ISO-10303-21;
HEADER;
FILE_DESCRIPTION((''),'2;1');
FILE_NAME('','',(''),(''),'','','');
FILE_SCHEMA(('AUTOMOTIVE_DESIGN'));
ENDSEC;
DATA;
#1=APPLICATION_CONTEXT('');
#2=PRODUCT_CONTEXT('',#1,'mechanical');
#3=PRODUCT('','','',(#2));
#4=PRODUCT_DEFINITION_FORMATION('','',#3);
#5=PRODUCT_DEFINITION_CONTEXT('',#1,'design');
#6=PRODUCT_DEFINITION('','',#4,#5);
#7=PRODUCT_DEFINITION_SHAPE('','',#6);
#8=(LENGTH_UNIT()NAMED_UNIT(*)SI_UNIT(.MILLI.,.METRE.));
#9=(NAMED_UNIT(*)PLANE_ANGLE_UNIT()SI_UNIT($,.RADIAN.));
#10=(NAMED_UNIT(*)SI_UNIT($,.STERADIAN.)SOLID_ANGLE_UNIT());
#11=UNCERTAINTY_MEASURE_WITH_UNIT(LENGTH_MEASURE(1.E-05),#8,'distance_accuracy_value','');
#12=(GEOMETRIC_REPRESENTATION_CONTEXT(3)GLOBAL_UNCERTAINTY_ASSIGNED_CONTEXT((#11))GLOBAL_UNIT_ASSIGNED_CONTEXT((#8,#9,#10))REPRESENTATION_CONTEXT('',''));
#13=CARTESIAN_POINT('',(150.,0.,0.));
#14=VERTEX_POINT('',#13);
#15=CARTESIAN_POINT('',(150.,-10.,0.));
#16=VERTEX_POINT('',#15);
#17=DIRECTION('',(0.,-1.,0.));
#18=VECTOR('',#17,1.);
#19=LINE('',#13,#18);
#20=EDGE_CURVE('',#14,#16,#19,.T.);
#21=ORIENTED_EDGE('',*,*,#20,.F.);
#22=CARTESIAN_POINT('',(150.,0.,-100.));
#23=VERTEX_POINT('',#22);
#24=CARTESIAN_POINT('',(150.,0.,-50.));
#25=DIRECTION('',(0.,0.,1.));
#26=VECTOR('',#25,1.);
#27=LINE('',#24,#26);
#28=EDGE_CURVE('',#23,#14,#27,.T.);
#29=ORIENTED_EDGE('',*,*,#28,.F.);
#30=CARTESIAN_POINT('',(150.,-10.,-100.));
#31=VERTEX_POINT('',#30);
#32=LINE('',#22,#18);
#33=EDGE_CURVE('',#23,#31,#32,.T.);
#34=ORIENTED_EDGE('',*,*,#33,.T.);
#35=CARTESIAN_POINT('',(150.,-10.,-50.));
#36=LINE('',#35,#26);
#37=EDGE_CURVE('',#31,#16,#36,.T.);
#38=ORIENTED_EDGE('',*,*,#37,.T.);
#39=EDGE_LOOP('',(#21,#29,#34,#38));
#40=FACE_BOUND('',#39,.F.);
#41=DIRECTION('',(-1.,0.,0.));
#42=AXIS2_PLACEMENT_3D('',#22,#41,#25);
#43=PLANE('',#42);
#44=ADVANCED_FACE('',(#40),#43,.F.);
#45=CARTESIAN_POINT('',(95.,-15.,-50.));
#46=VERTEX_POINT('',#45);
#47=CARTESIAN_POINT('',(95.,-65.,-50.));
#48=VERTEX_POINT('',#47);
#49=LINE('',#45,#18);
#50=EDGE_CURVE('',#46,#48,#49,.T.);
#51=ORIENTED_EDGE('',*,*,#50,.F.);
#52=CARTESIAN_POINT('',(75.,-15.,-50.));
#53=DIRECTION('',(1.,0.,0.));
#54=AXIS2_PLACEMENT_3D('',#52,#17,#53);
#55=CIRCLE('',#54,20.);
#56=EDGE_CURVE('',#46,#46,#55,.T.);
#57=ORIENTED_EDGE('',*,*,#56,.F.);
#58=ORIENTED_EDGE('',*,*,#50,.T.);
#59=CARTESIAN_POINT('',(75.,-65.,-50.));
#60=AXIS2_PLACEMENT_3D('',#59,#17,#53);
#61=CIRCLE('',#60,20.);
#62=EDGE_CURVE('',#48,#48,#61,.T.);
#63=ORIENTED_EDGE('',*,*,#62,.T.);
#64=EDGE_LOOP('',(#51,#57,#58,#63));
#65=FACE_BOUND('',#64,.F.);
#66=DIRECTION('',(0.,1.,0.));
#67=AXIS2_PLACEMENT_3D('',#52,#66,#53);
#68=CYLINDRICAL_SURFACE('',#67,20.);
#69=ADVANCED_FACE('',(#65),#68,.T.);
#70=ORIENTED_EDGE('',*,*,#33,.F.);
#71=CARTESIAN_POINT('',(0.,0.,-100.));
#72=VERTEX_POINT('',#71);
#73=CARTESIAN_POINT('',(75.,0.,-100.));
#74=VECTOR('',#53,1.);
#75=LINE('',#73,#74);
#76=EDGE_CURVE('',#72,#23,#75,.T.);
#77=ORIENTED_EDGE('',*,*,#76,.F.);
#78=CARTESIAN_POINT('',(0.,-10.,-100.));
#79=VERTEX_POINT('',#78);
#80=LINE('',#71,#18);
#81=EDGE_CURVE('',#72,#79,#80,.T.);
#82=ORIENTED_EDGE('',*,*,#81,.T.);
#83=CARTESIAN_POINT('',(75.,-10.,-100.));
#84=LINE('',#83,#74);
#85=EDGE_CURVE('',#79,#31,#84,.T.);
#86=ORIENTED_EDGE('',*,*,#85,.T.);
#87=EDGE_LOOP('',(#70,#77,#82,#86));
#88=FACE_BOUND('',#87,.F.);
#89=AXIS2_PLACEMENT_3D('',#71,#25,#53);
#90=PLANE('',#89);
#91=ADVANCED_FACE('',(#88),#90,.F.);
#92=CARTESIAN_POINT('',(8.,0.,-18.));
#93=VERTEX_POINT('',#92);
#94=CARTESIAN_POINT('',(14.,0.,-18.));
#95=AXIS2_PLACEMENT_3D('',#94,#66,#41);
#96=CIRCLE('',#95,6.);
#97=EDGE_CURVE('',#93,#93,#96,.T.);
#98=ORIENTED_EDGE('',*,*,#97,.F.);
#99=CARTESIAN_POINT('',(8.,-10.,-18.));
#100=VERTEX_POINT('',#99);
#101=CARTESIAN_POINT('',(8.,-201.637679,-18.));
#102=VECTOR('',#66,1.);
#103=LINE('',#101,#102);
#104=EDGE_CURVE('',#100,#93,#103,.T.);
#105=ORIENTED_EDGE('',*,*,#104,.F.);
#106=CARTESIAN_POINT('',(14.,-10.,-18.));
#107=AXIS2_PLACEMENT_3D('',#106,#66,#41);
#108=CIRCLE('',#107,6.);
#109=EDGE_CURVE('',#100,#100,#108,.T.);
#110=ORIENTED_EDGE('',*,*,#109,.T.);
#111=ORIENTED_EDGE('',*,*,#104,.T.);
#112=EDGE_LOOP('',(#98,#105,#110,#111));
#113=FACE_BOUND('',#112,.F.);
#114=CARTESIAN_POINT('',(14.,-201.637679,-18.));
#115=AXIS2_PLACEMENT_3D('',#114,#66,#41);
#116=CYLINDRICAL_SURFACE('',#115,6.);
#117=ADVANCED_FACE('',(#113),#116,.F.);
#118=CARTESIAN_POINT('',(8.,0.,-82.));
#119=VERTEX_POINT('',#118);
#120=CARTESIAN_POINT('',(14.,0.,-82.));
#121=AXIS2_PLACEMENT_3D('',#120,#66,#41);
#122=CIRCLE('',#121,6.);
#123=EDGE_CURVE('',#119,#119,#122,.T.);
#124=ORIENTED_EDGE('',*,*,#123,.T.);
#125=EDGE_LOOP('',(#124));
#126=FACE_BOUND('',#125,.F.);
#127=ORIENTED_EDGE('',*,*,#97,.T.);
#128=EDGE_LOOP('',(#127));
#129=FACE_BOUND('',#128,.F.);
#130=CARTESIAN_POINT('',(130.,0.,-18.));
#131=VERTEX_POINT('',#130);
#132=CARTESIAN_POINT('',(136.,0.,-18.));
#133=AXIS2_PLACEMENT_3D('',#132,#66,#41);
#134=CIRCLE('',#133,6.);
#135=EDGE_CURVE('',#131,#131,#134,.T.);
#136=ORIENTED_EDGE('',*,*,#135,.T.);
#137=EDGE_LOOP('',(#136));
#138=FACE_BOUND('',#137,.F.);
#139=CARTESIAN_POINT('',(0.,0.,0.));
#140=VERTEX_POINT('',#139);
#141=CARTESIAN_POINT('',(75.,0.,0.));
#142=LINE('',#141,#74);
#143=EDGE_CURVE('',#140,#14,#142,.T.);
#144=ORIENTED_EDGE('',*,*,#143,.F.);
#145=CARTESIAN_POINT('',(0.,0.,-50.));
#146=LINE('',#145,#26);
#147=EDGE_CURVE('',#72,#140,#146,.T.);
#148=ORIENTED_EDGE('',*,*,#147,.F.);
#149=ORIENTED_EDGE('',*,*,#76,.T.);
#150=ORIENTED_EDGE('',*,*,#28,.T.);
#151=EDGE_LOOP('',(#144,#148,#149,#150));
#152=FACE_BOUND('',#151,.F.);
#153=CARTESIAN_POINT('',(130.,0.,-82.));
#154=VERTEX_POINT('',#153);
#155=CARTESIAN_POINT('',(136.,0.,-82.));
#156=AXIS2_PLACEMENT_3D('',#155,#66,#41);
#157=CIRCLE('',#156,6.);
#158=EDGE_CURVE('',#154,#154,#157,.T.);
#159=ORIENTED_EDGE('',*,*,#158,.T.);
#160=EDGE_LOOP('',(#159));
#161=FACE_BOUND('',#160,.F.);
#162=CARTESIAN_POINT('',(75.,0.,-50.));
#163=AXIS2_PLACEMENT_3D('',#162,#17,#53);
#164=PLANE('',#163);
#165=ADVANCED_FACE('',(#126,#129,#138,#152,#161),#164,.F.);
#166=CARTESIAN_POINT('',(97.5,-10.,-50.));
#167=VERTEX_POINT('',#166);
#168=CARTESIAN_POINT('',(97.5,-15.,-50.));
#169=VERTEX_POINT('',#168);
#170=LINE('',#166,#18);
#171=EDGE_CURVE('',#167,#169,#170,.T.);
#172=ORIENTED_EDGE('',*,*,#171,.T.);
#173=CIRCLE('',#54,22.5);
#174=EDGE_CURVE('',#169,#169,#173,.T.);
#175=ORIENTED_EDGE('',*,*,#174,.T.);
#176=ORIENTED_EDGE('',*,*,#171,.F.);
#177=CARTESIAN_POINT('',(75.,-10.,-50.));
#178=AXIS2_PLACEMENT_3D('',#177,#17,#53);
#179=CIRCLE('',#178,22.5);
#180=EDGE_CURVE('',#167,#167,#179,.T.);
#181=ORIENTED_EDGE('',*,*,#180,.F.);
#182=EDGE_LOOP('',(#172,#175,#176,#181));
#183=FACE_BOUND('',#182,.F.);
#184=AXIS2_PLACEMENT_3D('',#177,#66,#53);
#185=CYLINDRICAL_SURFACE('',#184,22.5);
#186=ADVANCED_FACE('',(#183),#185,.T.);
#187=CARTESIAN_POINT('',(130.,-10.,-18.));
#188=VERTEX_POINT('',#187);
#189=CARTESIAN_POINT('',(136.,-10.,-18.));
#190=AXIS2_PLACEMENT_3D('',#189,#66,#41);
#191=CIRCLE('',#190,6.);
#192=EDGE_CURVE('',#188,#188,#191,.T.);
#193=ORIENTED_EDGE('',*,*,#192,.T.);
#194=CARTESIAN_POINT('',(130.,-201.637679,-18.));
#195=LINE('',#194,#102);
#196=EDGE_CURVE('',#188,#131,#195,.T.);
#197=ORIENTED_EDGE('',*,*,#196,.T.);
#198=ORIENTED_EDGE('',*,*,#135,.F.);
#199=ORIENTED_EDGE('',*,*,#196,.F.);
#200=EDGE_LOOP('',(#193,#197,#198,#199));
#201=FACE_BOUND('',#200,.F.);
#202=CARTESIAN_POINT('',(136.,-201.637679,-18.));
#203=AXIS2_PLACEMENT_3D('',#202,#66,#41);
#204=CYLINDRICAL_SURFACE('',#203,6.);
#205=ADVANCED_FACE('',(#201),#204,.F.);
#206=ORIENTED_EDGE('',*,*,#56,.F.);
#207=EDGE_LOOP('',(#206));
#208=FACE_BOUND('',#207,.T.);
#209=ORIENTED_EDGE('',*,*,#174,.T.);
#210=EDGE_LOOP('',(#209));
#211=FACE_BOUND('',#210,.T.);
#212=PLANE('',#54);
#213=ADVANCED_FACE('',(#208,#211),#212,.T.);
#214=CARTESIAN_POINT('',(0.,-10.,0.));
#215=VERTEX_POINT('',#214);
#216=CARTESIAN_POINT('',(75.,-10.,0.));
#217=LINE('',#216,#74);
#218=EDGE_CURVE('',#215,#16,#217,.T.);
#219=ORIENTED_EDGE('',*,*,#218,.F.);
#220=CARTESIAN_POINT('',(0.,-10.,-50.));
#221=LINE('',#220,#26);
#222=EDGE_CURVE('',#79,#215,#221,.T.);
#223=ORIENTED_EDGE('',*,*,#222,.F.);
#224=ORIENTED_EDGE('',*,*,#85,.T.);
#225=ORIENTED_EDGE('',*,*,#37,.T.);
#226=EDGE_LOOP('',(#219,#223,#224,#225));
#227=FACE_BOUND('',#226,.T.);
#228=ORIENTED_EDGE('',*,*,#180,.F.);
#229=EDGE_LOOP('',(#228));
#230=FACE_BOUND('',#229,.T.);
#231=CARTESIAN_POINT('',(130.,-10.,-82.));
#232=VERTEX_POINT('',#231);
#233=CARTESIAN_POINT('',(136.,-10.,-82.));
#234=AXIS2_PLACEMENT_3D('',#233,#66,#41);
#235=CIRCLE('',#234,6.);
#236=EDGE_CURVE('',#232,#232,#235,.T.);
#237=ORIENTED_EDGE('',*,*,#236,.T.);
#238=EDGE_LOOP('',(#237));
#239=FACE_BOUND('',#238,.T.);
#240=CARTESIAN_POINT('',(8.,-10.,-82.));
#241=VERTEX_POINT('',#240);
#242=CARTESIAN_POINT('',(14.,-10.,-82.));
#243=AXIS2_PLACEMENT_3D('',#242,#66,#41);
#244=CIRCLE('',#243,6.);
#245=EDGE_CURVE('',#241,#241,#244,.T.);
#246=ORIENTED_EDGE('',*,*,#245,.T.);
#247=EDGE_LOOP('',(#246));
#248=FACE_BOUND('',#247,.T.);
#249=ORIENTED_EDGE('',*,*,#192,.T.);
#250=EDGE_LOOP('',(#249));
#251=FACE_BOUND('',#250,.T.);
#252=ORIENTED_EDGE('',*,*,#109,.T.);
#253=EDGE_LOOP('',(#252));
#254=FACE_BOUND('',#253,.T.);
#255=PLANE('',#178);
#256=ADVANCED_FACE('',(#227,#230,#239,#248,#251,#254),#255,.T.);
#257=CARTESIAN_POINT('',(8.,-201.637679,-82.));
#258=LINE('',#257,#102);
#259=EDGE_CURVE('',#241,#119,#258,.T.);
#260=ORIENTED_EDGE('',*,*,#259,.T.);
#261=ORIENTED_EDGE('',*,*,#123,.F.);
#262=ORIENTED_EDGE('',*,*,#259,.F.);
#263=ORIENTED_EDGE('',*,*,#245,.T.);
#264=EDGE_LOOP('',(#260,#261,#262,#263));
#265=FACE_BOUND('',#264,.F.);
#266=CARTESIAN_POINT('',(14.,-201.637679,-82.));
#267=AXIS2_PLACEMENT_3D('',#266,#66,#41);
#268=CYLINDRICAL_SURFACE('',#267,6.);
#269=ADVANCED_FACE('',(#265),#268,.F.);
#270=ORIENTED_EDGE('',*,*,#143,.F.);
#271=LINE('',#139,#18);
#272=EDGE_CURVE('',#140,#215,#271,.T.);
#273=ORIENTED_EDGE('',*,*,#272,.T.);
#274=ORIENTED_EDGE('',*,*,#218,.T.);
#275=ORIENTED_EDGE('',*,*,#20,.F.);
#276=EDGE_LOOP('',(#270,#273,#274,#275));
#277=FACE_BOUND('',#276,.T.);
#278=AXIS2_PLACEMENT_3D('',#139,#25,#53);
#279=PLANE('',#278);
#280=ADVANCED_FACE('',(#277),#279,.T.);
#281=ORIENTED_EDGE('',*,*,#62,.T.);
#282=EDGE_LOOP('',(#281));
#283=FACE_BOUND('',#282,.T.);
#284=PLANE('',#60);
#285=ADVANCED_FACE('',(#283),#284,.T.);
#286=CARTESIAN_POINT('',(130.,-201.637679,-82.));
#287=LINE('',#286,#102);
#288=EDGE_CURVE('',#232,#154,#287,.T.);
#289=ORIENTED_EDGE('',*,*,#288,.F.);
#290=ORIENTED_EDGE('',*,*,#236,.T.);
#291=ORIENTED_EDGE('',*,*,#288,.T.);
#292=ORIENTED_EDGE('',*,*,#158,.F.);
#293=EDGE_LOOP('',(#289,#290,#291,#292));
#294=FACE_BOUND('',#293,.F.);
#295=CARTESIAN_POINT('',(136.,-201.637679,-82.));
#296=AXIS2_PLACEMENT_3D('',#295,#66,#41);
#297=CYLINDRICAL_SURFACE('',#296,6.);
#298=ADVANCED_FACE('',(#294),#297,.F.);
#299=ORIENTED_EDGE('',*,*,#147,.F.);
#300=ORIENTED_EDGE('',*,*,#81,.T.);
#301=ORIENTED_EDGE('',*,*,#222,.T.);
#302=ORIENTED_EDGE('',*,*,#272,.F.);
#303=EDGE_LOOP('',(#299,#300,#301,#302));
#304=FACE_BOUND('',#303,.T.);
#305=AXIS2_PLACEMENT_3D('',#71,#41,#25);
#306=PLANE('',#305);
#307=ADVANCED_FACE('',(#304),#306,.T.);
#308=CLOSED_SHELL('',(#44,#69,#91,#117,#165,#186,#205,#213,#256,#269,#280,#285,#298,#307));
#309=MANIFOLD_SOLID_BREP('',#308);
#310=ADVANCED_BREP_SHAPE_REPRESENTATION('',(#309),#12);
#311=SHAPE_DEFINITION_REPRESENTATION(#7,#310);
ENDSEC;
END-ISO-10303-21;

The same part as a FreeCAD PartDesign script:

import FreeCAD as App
import Part
import Sketcher
Q = App.Units.Quantity


def add_polygon(sketch, points):
    """Adds a closed chain of lines whose ends are joined by coincident constraints."""
    first, n = sketch.GeometryCount, len(points)
    for a, b in zip(points, points[1:] + points[:1]):
        sketch.addGeometry(Part.LineSegment(App.Vector(*a, 0), App.Vector(*b, 0)), False)
    for i in range(n):
        sketch.addConstraint(Sketcher.Constraint("Coincident", first + i, 2, first + (i + 1) % n, 1))

doc = App.newDocument("Part")
params = doc.addObject("Spreadsheet::Sheet", "Params")
for row, (alias, value) in enumerate([
    ("sketch1_width", "150 mm"),
    ("sketch1_height", "100 mm"),
    ("pad1_length", "10 mm"),
    ("sketch2_diameter", "45 mm"),
    ("pad2_length", "5 mm"),
    ("sketch3_diameter", "40 mm"),
    ("pad3_length", "50 mm"),
    ("sketch4_diameter", "12 mm"),
    ("hole_diameter", "12 mm"),
    ("sketch5_diameter", "12 mm"),
    ("hole2_diameter", "12 mm"),
    ("sketch6_diameter", "12 mm"),
    ("hole3_diameter", "12 mm"),
], start=1):
    params.set(f"A{row}", alias)
    params.set(f"B{row}", "=" + value)
    params.setAlias(f"B{row}", alias)

body = doc.addObject("PartDesign::Body", "Body")

sketch1 = body.newObject("Sketcher::SketchObject", "Sketch")
sketch1.AttachmentSupport = (doc.getObject("XZ_Plane"), [""])
sketch1.MapMode = "FlatFace"
add_polygon(sketch1, [(0, 0), (0, -100), (150, -100), (150, 0)])
sketch1.addConstraint(Sketcher.Constraint("Vertical", 0))
sketch1.addConstraint(Sketcher.Constraint("Horizontal", 1))
sketch1.addConstraint(Sketcher.Constraint("Vertical", 2))
sketch1.addConstraint(Sketcher.Constraint("Horizontal", 3))
sketch1.addConstraint(Sketcher.Constraint("Coincident", 3, 2, -1, 1))
sketch1.addConstraint(Sketcher.Constraint("DistanceX", 1, 1, 1, 2, Q("150 mm")))
sketch1.addConstraint(Sketcher.Constraint("DistanceY", 0, 2, 0, 1, Q("100 mm")))
sketch1.setExpression("Constraints[9]", "Params.sketch1_width")
sketch1.setExpression("Constraints[10]", "Params.sketch1_height")
pad1 = body.newObject("PartDesign::Pad", "Pad")
pad1.Profile = sketch1
pad1.setExpression("Length", "Params.pad1_length")

sketch2 = body.newObject("Sketcher::SketchObject", "Sketch001")
sketch2.AttachmentSupport = (doc.getObject("XZ_Plane"), [""])
sketch2.MapMode = "FlatFace"
sketch2.AttachmentOffset = App.Placement(App.Vector(0, 0, 10), App.Rotation())
sketch2.addGeometry(Part.Circle(App.Vector(75, -50, 0), App.Vector(0, 0, 1), 22.5), False)
sketch2.addConstraint(Sketcher.Constraint("Diameter", 0, Q("45 mm")))
sketch2.addConstraint(Sketcher.Constraint("DistanceX", -1, 1, 0, 3, Q("75 mm")))
sketch2.addConstraint(Sketcher.Constraint("DistanceY", 0, 3, -1, 1, Q("50 mm")))
sketch2.setExpression("Constraints[0]", "Params.sketch2_diameter")
pad2 = body.newObject("PartDesign::Pad", "Pad001")
pad2.Profile = sketch2
pad2.setExpression("Length", "Params.pad2_length")

sketch3 = body.newObject("Sketcher::SketchObject", "Sketch002")
sketch3.AttachmentSupport = (doc.getObject("XZ_Plane"), [""])
sketch3.MapMode = "FlatFace"
sketch3.AttachmentOffset = App.Placement(App.Vector(0, 0, 15), App.Rotation())
sketch3.addGeometry(Part.Circle(App.Vector(75, -50, 0), App.Vector(0, 0, 1), 20), False)
sketch3.addConstraint(Sketcher.Constraint("Diameter", 0, Q("40 mm")))
sketch3.addConstraint(Sketcher.Constraint("DistanceX", -1, 1, 0, 3, Q("75 mm")))
sketch3.addConstraint(Sketcher.Constraint("DistanceY", 0, 3, -1, 1, Q("50 mm")))
sketch3.setExpression("Constraints[0]", "Params.sketch3_diameter")
pad3 = body.newObject("PartDesign::Pad", "Pad002")
pad3.Profile = sketch3
pad3.setExpression("Length", "Params.pad3_length")

sketch4 = body.newObject("Sketcher::SketchObject", "Sketch003")
sketch4.AttachmentSupport = (doc.getObject("XZ_Plane"), [""])
sketch4.MapMode = "FlatFace"
sketch4.AttachmentOffset = App.Placement(App.Vector(0, 0, 10), App.Rotation())
sketch4.addGeometry(Part.Circle(App.Vector(136, -18, 0), App.Vector(0, 0, 1), 6), False)
sketch4.addConstraint(Sketcher.Constraint("Diameter", 0, Q("12 mm")))
sketch4.addConstraint(Sketcher.Constraint("DistanceX", -1, 1, 0, 3, Q("136 mm")))
sketch4.addConstraint(Sketcher.Constraint("DistanceY", 0, 3, -1, 1, Q("18 mm")))
sketch4.setExpression("Constraints[0]", "Params.sketch4_diameter")
doc.recompute()
hole = body.newObject("PartDesign::Hole", "Hole")
hole.Profile = sketch4
hole.ThreadType = "None"
hole.setExpression("Diameter", "Params.hole_diameter")
hole.DepthType = "ThroughAll"

sketch5 = body.newObject("Sketcher::SketchObject", "Sketch004")
sketch5.AttachmentSupport = (doc.getObject("XZ_Plane"), [""])
sketch5.MapMode = "FlatFace"
sketch5.AttachmentOffset = App.Placement(App.Vector(0, 0, 10), App.Rotation())
sketch5.addGeometry(Part.Circle(App.Vector(136, -82, 0), App.Vector(0, 0, 1), 6), False)
sketch5.addConstraint(Sketcher.Constraint("Diameter", 0, Q("12 mm")))
sketch5.addConstraint(Sketcher.Constraint("DistanceX", -1, 1, 0, 3, Q("136 mm")))
sketch5.addConstraint(Sketcher.Constraint("DistanceY", 0, 3, -1, 1, Q("82 mm")))
sketch5.setExpression("Constraints[0]", "Params.sketch5_diameter")
doc.recompute()
hole2 = body.newObject("PartDesign::Hole", "Hole001")
hole2.Profile = sketch5
hole2.ThreadType = "None"
hole2.setExpression("Diameter", "Params.hole2_diameter")
hole2.DepthType = "ThroughAll"

sketch6 = body.newObject("Sketcher::SketchObject", "Sketch005")
sketch6.AttachmentSupport = (doc.getObject("XZ_Plane"), [""])
sketch6.MapMode = "FlatFace"
sketch6.AttachmentOffset = App.Placement(App.Vector(0, 0, 10), App.Rotation())
sketch6.addGeometry(Part.Circle(App.Vector(14, -82, 0), App.Vector(0, 0, 1), 6), False)
sketch6.addGeometry(Part.Circle(App.Vector(14, -18, 0), App.Vector(0, 0, 1), 6), False)
sketch6.addConstraint(Sketcher.Constraint("Equal", 0, 1))
sketch6.addConstraint(Sketcher.Constraint("Vertical", 0, 3, 1, 3))
sketch6.addConstraint(Sketcher.Constraint("Diameter", 0, Q("12 mm")))
sketch6.addConstraint(Sketcher.Constraint("DistanceX", -1, 1, 0, 3, Q("14 mm")))
sketch6.addConstraint(Sketcher.Constraint("DistanceY", 0, 3, -1, 1, Q("82 mm")))
sketch6.addConstraint(Sketcher.Constraint("DistanceY", 1, 3, -1, 1, Q("18 mm")))
sketch6.setExpression("Constraints[2]", "Params.sketch6_diameter")
doc.recompute()
hole3 = body.newObject("PartDesign::Hole", "Hole002")
hole3.Profile = sketch6
hole3.ThreadType = "None"
hole3.setExpression("Diameter", "Params.hole3_diameter")
hole3.DepthType = "ThroughAll"

doc.recompute()
